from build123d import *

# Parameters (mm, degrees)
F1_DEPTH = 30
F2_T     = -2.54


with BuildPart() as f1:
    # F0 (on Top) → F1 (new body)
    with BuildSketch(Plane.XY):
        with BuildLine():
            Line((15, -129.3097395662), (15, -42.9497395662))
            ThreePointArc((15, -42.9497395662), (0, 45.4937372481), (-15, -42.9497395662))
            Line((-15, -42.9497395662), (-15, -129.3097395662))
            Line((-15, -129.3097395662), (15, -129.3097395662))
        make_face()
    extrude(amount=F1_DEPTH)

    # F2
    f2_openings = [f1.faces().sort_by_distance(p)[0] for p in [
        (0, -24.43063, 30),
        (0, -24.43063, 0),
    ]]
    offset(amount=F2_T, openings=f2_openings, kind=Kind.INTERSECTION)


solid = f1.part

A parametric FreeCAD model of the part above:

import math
import FreeCAD as App
import Part
import Sketcher

V = App.Vector
Q = App.Units.Quantity


def faces_at(feature, points):
    """Names of the faces that lie closest to the given points."""
    faces = feature.Shape.Faces
    near = lambda p: min(range(len(faces)), key=lambda i: faces[i].distToShape(Part.Vertex(*p))[0])
    return sorted({f"Face{near(p) + 1}" for p in points})

doc = App.newDocument("Part")
body = doc.addObject("PartDesign::Body", "Body")

# Sketch on XY plane
sketch1 = body.newObject("Sketcher::SketchObject", "Sketch")
sketch1.AttachmentSupport = (doc.getObject("XY_Plane"), [""])
sketch1.MapMode = "FlatFace"
sketch1.addGeometry([
    Part.LineSegment(V(15, -129, 0), V(15, -43, 0)),
    Part.ArcOfCircle(Part.Circle(V(0, 0, 0), V(0, 0, 1), 45), math.radians(-71), math.radians(251)),
    Part.LineSegment(V(-15, -43, 0), V(-15, -129, 0)),
    Part.LineSegment(V(-15, -129, 0), V(15, -129, 0)),
], False)
sketch1.addConstraint([
    Sketcher.Constraint("Coincident", 0, 2, 1, 1),
    Sketcher.Constraint("Coincident", 1, 2, 2, 1),
    Sketcher.Constraint("Coincident", 2, 2, 3, 1),
    Sketcher.Constraint("Coincident", 3, 2, 0, 1),
    Sketcher.Constraint("Vertical", 0),
    Sketcher.Constraint("Vertical", 2),
    Sketcher.Constraint("Horizontal", 3),
    Sketcher.Constraint("Coincident", 1, 3, -1, 1),
    Sketcher.Constraint("Horizontal", 0, 2, 1, 2),
    Sketcher.Constraint("DistanceY", 0, 1, 0, 2, Q("3.4 in")),
    Sketcher.Constraint("DistanceX", 3, 1, 3, 2, 30.0),
    Sketcher.Constraint("Radius", 1, 45.493737),
])
pad1 = body.newObject("PartDesign::Pad", "Pad")
pad1.Profile = sketch1
pad1.Length = 30
doc.recompute()

thickness = body.newObject("PartDesign::Thickness", "Thickness")
thickness.Base = (pad1, faces_at(pad1, [(0, -41.908, 30), (0, -41.908, 0)]))
thickness.Value = Q("0.1 in")
thickness.Reversed = True
thickness.Join = "Intersection"

doc.recompute()
